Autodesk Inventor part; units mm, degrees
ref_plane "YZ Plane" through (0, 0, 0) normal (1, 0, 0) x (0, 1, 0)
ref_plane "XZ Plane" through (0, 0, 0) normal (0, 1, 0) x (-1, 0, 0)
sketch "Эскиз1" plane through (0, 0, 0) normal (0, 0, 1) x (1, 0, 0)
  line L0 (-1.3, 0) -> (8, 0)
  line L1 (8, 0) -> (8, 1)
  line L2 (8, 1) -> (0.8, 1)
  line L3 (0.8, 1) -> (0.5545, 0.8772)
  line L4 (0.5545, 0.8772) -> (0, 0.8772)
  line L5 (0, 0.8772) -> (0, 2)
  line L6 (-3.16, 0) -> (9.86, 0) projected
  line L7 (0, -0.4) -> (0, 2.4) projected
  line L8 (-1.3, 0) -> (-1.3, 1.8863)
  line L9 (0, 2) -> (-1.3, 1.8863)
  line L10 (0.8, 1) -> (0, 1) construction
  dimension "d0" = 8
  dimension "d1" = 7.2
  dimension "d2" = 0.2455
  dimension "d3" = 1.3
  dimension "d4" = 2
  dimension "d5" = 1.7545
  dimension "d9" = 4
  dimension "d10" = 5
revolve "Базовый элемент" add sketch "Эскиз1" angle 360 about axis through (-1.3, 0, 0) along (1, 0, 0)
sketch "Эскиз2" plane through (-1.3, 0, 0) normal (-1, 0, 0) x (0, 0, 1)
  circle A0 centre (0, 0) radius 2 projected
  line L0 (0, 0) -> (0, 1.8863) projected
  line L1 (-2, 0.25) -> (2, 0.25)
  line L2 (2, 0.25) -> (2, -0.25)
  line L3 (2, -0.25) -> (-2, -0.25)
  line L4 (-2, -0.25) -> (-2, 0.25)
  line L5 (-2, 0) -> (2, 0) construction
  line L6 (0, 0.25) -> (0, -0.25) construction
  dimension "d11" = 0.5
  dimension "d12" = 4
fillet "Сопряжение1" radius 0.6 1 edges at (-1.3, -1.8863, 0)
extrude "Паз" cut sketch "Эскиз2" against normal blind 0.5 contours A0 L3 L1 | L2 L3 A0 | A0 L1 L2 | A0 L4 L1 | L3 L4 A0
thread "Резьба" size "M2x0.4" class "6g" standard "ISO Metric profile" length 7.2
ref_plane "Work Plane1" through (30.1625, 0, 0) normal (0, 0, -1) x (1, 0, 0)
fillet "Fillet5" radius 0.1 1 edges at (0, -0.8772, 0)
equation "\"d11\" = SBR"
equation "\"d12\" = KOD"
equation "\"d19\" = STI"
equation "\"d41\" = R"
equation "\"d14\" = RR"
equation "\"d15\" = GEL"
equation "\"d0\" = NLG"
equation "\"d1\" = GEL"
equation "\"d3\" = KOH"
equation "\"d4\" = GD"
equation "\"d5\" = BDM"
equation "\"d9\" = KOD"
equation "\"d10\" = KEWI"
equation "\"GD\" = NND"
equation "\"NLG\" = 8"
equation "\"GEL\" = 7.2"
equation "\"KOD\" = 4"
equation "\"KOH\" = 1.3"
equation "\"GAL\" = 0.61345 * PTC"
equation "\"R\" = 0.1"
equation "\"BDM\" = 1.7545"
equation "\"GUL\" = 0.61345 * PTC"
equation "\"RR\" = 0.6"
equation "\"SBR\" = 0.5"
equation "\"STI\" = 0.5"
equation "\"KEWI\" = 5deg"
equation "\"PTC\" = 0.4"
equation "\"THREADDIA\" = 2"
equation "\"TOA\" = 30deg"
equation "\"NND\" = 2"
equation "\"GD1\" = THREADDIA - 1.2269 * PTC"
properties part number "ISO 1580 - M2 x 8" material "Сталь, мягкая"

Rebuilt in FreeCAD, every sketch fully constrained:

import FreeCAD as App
import Part
import Sketcher
Q = App.Units.Quantity


def edges_at(feature, points):
    """Names of the edges that pass closest to the given points."""
    edges = feature.Shape.Edges
    near = lambda p: min(range(len(edges)), key=lambda i: edges[i].distToShape(Part.Vertex(*p))[0])
    return sorted({f"Edge{near(p) + 1}" for p in points})


def add_polygon(sketch, points):
    """Adds a closed chain of lines whose ends are joined by coincident constraints."""
    first, n = sketch.GeometryCount, len(points)
    for a, b in zip(points, points[1:] + points[:1]):
        sketch.addGeometry(Part.LineSegment(App.Vector(*a, 0), App.Vector(*b, 0)), False)
    for i in range(n):
        sketch.addConstraint(Sketcher.Constraint("Coincident", first + i, 2, first + (i + 1) % n, 1))

doc = App.newDocument("Part")
body = doc.addObject("PartDesign::Body", "Body")

# Sketch on XY plane
sketch1 = body.newObject("Sketcher::SketchObject", "Sketch")
sketch1.AttachmentSupport = (doc.getObject("XY_Plane"), [""])
sketch1.MapMode = "FlatFace"
add_polygon(sketch1, [(-1.3, 1.89), (-1.3, 0), (8, 0), (8, 1), (0.8, 1), (0.55, 0.88), (0, 0.88), (0, 2)])  # lines 0-7
sketch1.addConstraint(Sketcher.Constraint("Vertical", 0))
sketch1.addConstraint(Sketcher.Constraint("Horizontal", 1))
sketch1.addConstraint(Sketcher.Constraint("Vertical", 2))
sketch1.addConstraint(Sketcher.Constraint("Horizontal", 3))
sketch1.addConstraint(Sketcher.Constraint("Horizontal", 5))
sketch1.addConstraint(Sketcher.Constraint("Vertical", 6))
sketch1.addConstraint(Sketcher.Constraint("PointOnObject", 0, 2, -1))
sketch1.addConstraint(Sketcher.Constraint("PointOnObject", 5, 2, -2))
sketch1.addConstraint(Sketcher.Constraint("DistanceX", 3, 2, 3, 1, Q("7.2 mm")))
sketch1.addConstraint(Sketcher.Constraint("DistanceX", -1, 1, 1, 2, Q("8 mm")))
sketch1.addConstraint(Sketcher.Constraint("DistanceY", -1, 1, 6, 2, Q("2 mm")))
sketch1.addConstraint(Sketcher.Constraint("DistanceX", 0, 2, -1, 1, Q("1.3 mm")))
sketch1.addConstraint(Sketcher.Constraint("DistanceY", 2, 1, 2, 2, Q("1 mm")))
sketch1.addConstraint(Sketcher.Constraint("DistanceX", 4, 2, 3, 2, Q("0.2455 mm")))
sketch1.addConstraint(Sketcher.Constraint("Distance", 7, Q("1.305 mm")))
sketch1.addConstraint(Sketcher.Constraint("DistanceY", 6, 1, 6, 2, Q("1.1228 mm")))
revolution = body.newObject("PartDesign::Revolution", "Revolution")
revolution.Profile = sketch1
revolution.ReferenceAxis = (sketch1, ["H_Axis"])
revolution.Angle = 360
doc.recompute()

fillet = body.newObject("PartDesign::Fillet", "Fillet")
fillet.Base = (revolution, edges_at(revolution, [(-1.3, -1.886, 0)]))
fillet.Radius = 0.6

# Sketch on YZ plane
sketch2 = body.newObject("Sketcher::SketchObject", "Sketch001")
sketch2.AttachmentSupport = (doc.getObject("YZ_Plane"), [""])
sketch2.MapMode = "FlatFace"
sketch2.AttachmentOffset = App.Placement(App.Vector(0, 0, -1.3), App.Rotation())
add_polygon(sketch2, [(-0.2, 2), (0.2, 2), (0.2, -2), (-0.2, -2)])  # lines 0-3
sketch2.addConstraint(Sketcher.Constraint("Horizontal", 0))
sketch2.addConstraint(Sketcher.Constraint("Vertical", 1))
sketch2.addConstraint(Sketcher.Constraint("Horizontal", 2))
sketch2.addConstraint(Sketcher.Constraint("Vertical", 3))
sketch2.addConstraint(Sketcher.Constraint("Symmetric", 0, 2, 2, 2, -1, 1))
sketch2.addConstraint(Sketcher.Constraint("DistanceY", 1, 2, 1, 1, Q("4 mm")))
sketch2.addConstraint(Sketcher.Constraint("DistanceX", 0, 1, 0, 2, Q("0.5 mm")))
pocket1 = body.newObject("PartDesign::Pocket", "Pocket")
pocket1.Profile = sketch2
pocket1.Length = 0.5
pocket1.Reversed = True
doc.recompute()

fillet2 = body.newObject("PartDesign::Fillet", "Fillet001")
fillet2.Base = (pocket1, edges_at(pocket1, [(0, -0.877, 0)]))
fillet2.Radius = 0.1

doc.recompute()
